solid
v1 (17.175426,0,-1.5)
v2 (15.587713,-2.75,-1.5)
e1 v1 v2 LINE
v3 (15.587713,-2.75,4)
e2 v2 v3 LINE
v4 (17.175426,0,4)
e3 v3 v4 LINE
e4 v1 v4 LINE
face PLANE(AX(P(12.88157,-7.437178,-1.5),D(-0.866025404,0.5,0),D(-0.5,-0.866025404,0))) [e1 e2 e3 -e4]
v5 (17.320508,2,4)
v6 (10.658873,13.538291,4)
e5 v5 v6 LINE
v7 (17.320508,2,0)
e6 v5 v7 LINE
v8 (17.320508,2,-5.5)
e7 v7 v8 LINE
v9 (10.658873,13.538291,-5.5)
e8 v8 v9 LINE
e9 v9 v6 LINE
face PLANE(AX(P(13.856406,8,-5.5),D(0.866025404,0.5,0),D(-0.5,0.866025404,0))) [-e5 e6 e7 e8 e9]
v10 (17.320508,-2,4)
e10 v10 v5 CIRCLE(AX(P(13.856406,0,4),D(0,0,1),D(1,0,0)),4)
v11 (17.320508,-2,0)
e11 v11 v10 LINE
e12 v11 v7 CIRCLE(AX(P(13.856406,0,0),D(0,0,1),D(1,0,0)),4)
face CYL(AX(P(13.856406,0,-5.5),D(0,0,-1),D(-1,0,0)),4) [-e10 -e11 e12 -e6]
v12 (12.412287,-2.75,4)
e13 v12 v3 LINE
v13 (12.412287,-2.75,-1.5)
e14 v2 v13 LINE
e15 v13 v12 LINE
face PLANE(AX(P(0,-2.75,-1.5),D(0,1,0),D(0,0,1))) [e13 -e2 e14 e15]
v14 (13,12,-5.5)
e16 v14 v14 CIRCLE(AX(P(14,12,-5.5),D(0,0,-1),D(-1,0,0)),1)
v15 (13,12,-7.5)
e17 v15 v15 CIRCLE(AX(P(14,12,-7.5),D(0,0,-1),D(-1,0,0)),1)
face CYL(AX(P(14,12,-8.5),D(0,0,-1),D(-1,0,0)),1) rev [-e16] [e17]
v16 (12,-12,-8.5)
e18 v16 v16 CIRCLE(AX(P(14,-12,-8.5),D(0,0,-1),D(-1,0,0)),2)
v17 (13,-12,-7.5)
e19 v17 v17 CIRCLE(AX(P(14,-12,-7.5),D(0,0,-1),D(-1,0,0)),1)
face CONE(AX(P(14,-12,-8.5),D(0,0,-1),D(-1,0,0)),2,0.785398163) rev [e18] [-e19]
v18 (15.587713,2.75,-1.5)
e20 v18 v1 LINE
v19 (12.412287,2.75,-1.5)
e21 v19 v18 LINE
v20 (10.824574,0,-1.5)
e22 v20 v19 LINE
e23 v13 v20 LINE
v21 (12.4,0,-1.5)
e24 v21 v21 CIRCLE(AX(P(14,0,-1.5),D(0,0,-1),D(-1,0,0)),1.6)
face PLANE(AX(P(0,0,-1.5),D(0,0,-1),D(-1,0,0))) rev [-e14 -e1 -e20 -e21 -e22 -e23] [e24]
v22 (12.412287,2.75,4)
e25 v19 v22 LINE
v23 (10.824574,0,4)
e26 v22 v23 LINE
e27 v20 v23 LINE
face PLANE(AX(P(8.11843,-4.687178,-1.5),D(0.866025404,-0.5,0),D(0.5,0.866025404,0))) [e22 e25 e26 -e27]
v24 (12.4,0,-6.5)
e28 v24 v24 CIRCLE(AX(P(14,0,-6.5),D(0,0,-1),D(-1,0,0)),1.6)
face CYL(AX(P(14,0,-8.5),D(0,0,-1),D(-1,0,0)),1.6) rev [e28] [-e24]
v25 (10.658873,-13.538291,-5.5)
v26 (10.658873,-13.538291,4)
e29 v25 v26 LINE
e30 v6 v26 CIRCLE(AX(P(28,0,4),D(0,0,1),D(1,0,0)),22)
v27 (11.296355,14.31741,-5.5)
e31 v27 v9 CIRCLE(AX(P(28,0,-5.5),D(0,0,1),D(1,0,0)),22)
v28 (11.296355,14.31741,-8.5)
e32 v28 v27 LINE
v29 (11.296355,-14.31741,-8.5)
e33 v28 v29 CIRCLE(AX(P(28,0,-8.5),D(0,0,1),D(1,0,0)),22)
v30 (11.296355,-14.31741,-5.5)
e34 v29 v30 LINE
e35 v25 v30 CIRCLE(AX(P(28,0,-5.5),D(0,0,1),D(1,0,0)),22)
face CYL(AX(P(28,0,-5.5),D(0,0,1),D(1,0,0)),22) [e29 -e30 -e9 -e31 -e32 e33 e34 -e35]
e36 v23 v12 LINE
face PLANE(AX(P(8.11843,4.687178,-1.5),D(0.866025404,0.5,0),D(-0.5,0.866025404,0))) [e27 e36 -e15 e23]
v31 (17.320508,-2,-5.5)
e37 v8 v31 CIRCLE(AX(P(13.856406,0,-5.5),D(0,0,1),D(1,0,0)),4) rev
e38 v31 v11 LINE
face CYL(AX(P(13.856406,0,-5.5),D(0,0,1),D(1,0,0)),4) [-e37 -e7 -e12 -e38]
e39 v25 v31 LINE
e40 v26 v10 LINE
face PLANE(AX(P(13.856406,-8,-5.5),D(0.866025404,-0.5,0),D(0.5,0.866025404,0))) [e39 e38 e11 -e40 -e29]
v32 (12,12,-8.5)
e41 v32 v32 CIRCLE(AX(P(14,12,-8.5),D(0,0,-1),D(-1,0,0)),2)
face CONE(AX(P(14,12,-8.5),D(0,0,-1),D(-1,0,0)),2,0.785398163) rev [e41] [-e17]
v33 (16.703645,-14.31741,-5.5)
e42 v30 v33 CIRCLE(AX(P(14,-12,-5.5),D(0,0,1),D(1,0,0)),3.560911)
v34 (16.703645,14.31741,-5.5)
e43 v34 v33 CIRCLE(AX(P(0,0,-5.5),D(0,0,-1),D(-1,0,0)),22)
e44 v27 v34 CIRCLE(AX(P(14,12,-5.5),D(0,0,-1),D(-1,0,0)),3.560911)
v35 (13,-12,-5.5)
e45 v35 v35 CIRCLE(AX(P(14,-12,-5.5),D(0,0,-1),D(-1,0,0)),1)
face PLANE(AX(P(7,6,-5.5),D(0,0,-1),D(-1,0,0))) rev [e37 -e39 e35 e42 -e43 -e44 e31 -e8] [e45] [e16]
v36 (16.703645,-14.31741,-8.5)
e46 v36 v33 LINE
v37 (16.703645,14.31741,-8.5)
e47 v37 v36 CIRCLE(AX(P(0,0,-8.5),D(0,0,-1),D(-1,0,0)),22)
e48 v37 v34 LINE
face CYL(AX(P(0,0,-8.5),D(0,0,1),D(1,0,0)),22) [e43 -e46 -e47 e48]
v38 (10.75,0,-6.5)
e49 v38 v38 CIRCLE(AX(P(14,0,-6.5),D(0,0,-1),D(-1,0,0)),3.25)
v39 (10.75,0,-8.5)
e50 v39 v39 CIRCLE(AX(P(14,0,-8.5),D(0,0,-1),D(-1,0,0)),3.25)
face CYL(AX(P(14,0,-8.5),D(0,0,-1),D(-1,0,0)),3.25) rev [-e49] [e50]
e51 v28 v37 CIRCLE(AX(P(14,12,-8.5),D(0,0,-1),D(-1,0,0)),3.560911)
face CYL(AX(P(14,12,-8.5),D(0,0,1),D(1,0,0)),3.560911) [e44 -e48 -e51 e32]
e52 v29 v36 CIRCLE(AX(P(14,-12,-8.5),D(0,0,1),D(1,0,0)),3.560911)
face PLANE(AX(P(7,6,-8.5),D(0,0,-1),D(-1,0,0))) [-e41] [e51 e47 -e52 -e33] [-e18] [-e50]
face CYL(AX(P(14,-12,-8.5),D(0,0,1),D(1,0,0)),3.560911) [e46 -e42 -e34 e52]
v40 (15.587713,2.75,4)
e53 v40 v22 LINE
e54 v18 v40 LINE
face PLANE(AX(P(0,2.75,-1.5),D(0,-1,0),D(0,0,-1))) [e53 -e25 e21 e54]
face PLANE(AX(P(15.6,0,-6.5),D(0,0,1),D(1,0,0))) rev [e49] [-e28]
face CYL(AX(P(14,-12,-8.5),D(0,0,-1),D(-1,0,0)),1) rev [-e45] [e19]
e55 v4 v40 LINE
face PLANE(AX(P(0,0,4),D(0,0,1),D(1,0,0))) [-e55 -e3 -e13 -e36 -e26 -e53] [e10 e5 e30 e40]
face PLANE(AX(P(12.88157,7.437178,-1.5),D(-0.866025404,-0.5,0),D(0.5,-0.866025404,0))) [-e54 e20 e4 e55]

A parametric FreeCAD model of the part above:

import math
import FreeCAD as App
import Part
import Sketcher
from FreeCAD import Vector
Q = App.Units.Quantity


def edges_at(feature, points):
    """Names of the edges that pass closest to the given points."""
    edges = feature.Shape.Edges
    near = lambda p: min(range(len(edges)), key=lambda i: edges[i].distToShape(Part.Vertex(*p))[0])
    return sorted({f"Edge{near(p) + 1}" for p in points})


def add_polygon(sketch, points):
    """Adds a closed chain of lines whose ends are joined by coincident constraints."""
    first, n = sketch.GeometryCount, len(points)
    for a, b in zip(points, points[1:] + points[:1]):
        sketch.addGeometry(Part.LineSegment(App.Vector(*a, 0), App.Vector(*b, 0)), False)
    for i in range(n):
        sketch.addConstraint(Sketcher.Constraint("Coincident", first + i, 2, first + (i + 1) % n, 1))

doc = App.newDocument("Part")
body = doc.addObject("PartDesign::Body", "Body")

# Sketch on XY plane
sketch1 = body.newObject("Sketcher::SketchObject", "Sketch")
sketch1.AttachmentSupport = (doc.getObject("XY_Plane"), [""])
sketch1.MapMode = "FlatFace"
sketch1.addGeometry(Part.LineSegment(Vector(18, 0, 0), Vector(11, 14, 0)), False)
sketch1.addGeometry(Part.ArcOfCircle(Part.Circle(Vector(28, 0, 0), Vector(0, 0, 1), 22), math.radians(142), math.radians(218)), False)
sketch1.addGeometry(Part.LineSegment(Vector(11, -14, 0), Vector(18, 0, 0)), False)
sketch1.addConstraint(Sketcher.Constraint("Coincident", 0, 2, 1, 1))
sketch1.addConstraint(Sketcher.Constraint("Coincident", 1, 2, 2, 1))
sketch1.addConstraint(Sketcher.Constraint("Coincident", 2, 2, 0, 1))
sketch1.addConstraint(Sketcher.Constraint("Symmetric", 0, 2, 1, 2, -1))
sketch1.addConstraint(Sketcher.Constraint("PointOnObject", 2, 2, -1))
sketch1.addConstraint(Sketcher.Constraint("Radius", 1, Q("22 mm")))
sketch1.addConstraint(Sketcher.Constraint("Angle", 0, Q("120 deg")))
sketch1.addConstraint(Sketcher.Constraint("DistanceX", -1, 1, 1, 3, Q("28 mm")))
sketch1.addConstraint(Sketcher.Constraint("Distance", 0, Q("15.632671 mm")))
pad1 = body.newObject("PartDesign::Pad", "Pad")
pad1.Profile = sketch1
pad1.Length = 5.5
pad1.Reversed = True
doc.recompute()

fillet = body.newObject("PartDesign::Fillet", "Fillet")
fillet.Base = (pad1, edges_at(pad1, [(18.475, 0, -2.75)]))
fillet.Radius = 4

# Sketch on XY plane
sketch2 = body.newObject("Sketcher::SketchObject", "Sketch001")
sketch2.AttachmentSupport = (doc.getObject("XY_Plane"), [""])
sketch2.MapMode = "FlatFace"
sketch2.AttachmentOffset = App.Placement(Vector(0, 0, -5.5), App.Rotation())
sketch2.addGeometry(Part.ArcOfCircle(Part.Circle(Vector(28, 0, 0), Vector(0, 0, 1), 22), math.radians(139), math.radians(221)), False)
sketch2.addGeometry(Part.ArcOfCircle(Part.Circle(Vector(14, -12, 0), Vector(0, 0, 1), 3.6), math.radians(-139), math.radians(-41)), False)
sketch2.addGeometry(Part.ArcOfCircle(Part.Circle(Vector(0, 0, 0), Vector(0, 0, 1), 22), math.radians(-41), math.radians(41)), False)
sketch2.addGeometry(Part.ArcOfCircle(Part.Circle(Vector(14, 12, 0), Vector(0, 0, 1), 3.6), math.radians(41), math.radians(139)), False)
sketch2.addConstraint(Sketcher.Constraint("Tangent", 0, 2, 1, 1))
sketch2.addConstraint(Sketcher.Constraint("Tangent", 1, 2, 2, 1))
sketch2.addConstraint(Sketcher.Constraint("Tangent", 2, 2, 3, 1))
sketch2.addConstraint(Sketcher.Constraint("Tangent", 3, 2, 0, 1))
sketch2.addConstraint(Sketcher.Constraint("Coincident", 2, 3, -1, 1))
sketch2.addConstraint(Sketcher.Constraint("Equal", 0, 2))
sketch2.addConstraint(Sketcher.Constraint("Equal", 1, 3))
sketch2.addConstraint(Sketcher.Constraint("PointOnObject", 0, 3, -1))
sketch2.addConstraint(Sketcher.Constraint("Radius", 0, Q("22 mm")))
sketch2.addConstraint(Sketcher.Constraint("DistanceX", -1, 1, 0, 3, Q("28 mm")))
sketch2.addConstraint(Sketcher.Constraint("DistanceY", 1, 3, -1, 1, Q("12 mm")))
pad2 = body.newObject("PartDesign::Pad", "Pad001")
pad2.Profile = sketch2
pad2.Length = 3
pad2.Reversed = True

# Sketch on XY plane
sketch3 = body.newObject("Sketcher::SketchObject", "Sketch002")
sketch3.AttachmentSupport = (doc.getObject("XY_Plane"), [""])
sketch3.MapMode = "FlatFace"
sketch3.AttachmentOffset = App.Placement(Vector(0, 0, -8.5), App.Rotation())
sketch3.addGeometry(Part.Circle(Vector(14, 12, 0), Vector(0, 0, 1), 1), False)
sketch3.addGeometry(Part.Circle(Vector(14, -12, 0), Vector(0, 0, 1), 1), False)
sketch3.addConstraint(Sketcher.Constraint("Equal", 0, 1))
sketch3.addConstraint(Sketcher.Constraint("Symmetric", 0, 3, 1, 3, -1))
sketch3.addConstraint(Sketcher.Constraint("Diameter", 0, Q("2 mm")))
sketch3.addConstraint(Sketcher.Constraint("DistanceX", -1, 1, 0, 3, Q("14 mm")))
sketch3.addConstraint(Sketcher.Constraint("DistanceY", -1, 1, 0, 3, Q("12 mm")))
doc.recompute()
hole = body.newObject("PartDesign::Hole", "Hole")
hole.Profile = sketch3
hole.ThreadType = "None"
hole.Diameter = 2
hole.DepthType = "ThroughAll"
hole.HoleCutType = "Countersink"
hole.HoleCutDiameter = 4
hole.HoleCutCountersinkAngle = 90
hole.Reversed = True

# Sketch on XY plane
sketch4 = body.newObject("Sketcher::SketchObject", "Sketch003")
sketch4.AttachmentSupport = (doc.getObject("XY_Plane"), [""])
sketch4.MapMode = "FlatFace"
add_polygon(sketch4, [(12.4, 2.8), (10.8, 0), (12.4, -2.8), (15.6, -2.8), (17.2, 0), (15.6, 2.8)])  # lines 0-5
sketch4.addConstraint(Sketcher.Constraint("Horizontal", 2))
sketch4.addConstraint(Sketcher.Constraint("Horizontal", 5))
sketch4.addConstraint(Sketcher.Constraint("Symmetric", 2, 2, 4, 2, -1))
sketch4.addConstraint(Sketcher.Constraint("PointOnObject", 0, 2, -1))
sketch4.addConstraint(Sketcher.Constraint("PointOnObject", 3, 2, -1))
sketch4.addConstraint(Sketcher.Constraint("Parallel", 0, 3))
sketch4.addConstraint(Sketcher.Constraint("Parallel", 1, 4))
sketch4.addConstraint(Sketcher.Constraint("Angle", 0, Q("-120 deg")))
sketch4.addConstraint(Sketcher.Constraint("DistanceY", 2, 2, 4, 2, Q("5.5 mm")))
sketch4.addConstraint(Sketcher.Constraint("DistanceX", 2, 1, 2, 2, Q("3.175426 mm")))
sketch4.addConstraint(Sketcher.Constraint("DistanceX", -1, 1, 0, 2, Q("10.824574 mm")))
pocket1 = body.newObject("PartDesign::Pocket", "Pocket")
pocket1.Profile = sketch4
pocket1.Length = 1.5

# Sketch on XY plane
sketch5 = body.newObject("Sketcher::SketchObject", "Sketch004")
sketch5.AttachmentSupport = (doc.getObject("XY_Plane"), [""])
sketch5.MapMode = "FlatFace"
sketch5.addGeometry(Part.LineSegment(Vector(18.5, 0, 0), Vector(10.7, 13.5, 0)), False)  # 0
sketch5.addGeometry(Part.ArcOfCircle(Part.Circle(Vector(28, 0, 0), Vector(0, 0, 1), 22), math.radians(142), math.radians(218)), False)  # 1
sketch5.addGeometry(Part.LineSegment(Vector(10.7, -13.5, 0), Vector(18.5, 0, 0)), False)  # 2
add_polygon(sketch5, [(12.4, -2.8), (10.8, 0), (12.4, 2.8), (15.6, 2.8), (17.2, 0), (15.6, -2.8)])  # lines 3-8
sketch5.addConstraint(Sketcher.Constraint("Coincident", 0, 2, 1, 1))
sketch5.addConstraint(Sketcher.Constraint("Coincident", 1, 2, 2, 1))
sketch5.addConstraint(Sketcher.Constraint("Coincident", 2, 2, 0, 1))
sketch5.addConstraint(Sketcher.Constraint("Horizontal", 5))
sketch5.addConstraint(Sketcher.Constraint("Horizontal", 8))
sketch5.addConstraint(Sketcher.Constraint("Symmetric", 0, 2, 1, 2, -1))
sketch5.addConstraint(Sketcher.Constraint("Symmetric", 5, 2, 7, 2, -1))
sketch5.addConstraint(Sketcher.Constraint("PointOnObject", 2, 2, -1))
sketch5.addConstraint(Sketcher.Constraint("PointOnObject", 3, 2, -1))
sketch5.addConstraint(Sketcher.Constraint("PointOnObject", 6, 2, -1))
sketch5.addConstraint(Sketcher.Constraint("Parallel", 0, 3))
sketch5.addConstraint(Sketcher.Constraint("Parallel", 2, 4))
sketch5.addConstraint(Sketcher.Constraint("Parallel", 3, 6))
sketch5.addConstraint(Sketcher.Constraint("Radius", 1, Q("22 mm")))
sketch5.addConstraint(Sketcher.Constraint("Angle", 0, Q("120 deg")))
sketch5.addConstraint(Sketcher.Constraint("DistanceX", -1, 1, 1, 3, Q("28 mm")))
sketch5.addConstraint(Sketcher.Constraint("DistanceY", 7, 2, 5, 2, Q("5.5 mm")))
sketch5.addConstraint(Sketcher.Constraint("DistanceX", 0, 2, 3, 2, Q("0.165701 mm")))
sketch5.addConstraint(Sketcher.Constraint("Distance", 0, Q("15.632671 mm")))
sketch5.addConstraint(Sketcher.Constraint("DistanceX", 5, 1, 5, 2, Q("3.175426 mm")))
pad3 = body.newObject("PartDesign::Pad", "Pad002")
pad3.Profile = sketch5
pad3.Length = 4

# Sketch on XY plane
sketch6 = body.newObject("Sketcher::SketchObject", "Sketch005")
sketch6.AttachmentSupport = (doc.getObject("XY_Plane"), [""])
sketch6.MapMode = "FlatFace"
sketch6.AttachmentOffset = App.Placement(Vector(0, 0, -8.5), App.Rotation())
sketch6.addGeometry(Part.Circle(Vector(14, 0, 0), Vector(0, 0, 1), 1.6), False)
sketch6.addConstraint(Sketcher.Constraint("PointOnObject", 0, 3, -1))
sketch6.addConstraint(Sketcher.Constraint("Diameter", 0, Q("3.2 mm")))
sketch6.addConstraint(Sketcher.Constraint("DistanceX", -1, 1, 0, 3, Q("14 mm")))
doc.recompute()
hole2 = body.newObject("PartDesign::Hole", "Hole001")
hole2.Profile = sketch6
hole2.ThreadType = "None"
hole2.Diameter = 3.2
hole2.DepthType = "ThroughAll"
hole2.HoleCutType = "Counterbore"
hole2.HoleCutDiameter = 6.5
hole2.HoleCutDepth = 2
hole2.Reversed = True
doc.recompute()

fillet2 = body.newObject("PartDesign::Fillet", "Fillet001")
fillet2.Base = (hole2, edges_at(hole2, [(18.475, 0, 2)]))
fillet2.Radius = 4

doc.recompute()
